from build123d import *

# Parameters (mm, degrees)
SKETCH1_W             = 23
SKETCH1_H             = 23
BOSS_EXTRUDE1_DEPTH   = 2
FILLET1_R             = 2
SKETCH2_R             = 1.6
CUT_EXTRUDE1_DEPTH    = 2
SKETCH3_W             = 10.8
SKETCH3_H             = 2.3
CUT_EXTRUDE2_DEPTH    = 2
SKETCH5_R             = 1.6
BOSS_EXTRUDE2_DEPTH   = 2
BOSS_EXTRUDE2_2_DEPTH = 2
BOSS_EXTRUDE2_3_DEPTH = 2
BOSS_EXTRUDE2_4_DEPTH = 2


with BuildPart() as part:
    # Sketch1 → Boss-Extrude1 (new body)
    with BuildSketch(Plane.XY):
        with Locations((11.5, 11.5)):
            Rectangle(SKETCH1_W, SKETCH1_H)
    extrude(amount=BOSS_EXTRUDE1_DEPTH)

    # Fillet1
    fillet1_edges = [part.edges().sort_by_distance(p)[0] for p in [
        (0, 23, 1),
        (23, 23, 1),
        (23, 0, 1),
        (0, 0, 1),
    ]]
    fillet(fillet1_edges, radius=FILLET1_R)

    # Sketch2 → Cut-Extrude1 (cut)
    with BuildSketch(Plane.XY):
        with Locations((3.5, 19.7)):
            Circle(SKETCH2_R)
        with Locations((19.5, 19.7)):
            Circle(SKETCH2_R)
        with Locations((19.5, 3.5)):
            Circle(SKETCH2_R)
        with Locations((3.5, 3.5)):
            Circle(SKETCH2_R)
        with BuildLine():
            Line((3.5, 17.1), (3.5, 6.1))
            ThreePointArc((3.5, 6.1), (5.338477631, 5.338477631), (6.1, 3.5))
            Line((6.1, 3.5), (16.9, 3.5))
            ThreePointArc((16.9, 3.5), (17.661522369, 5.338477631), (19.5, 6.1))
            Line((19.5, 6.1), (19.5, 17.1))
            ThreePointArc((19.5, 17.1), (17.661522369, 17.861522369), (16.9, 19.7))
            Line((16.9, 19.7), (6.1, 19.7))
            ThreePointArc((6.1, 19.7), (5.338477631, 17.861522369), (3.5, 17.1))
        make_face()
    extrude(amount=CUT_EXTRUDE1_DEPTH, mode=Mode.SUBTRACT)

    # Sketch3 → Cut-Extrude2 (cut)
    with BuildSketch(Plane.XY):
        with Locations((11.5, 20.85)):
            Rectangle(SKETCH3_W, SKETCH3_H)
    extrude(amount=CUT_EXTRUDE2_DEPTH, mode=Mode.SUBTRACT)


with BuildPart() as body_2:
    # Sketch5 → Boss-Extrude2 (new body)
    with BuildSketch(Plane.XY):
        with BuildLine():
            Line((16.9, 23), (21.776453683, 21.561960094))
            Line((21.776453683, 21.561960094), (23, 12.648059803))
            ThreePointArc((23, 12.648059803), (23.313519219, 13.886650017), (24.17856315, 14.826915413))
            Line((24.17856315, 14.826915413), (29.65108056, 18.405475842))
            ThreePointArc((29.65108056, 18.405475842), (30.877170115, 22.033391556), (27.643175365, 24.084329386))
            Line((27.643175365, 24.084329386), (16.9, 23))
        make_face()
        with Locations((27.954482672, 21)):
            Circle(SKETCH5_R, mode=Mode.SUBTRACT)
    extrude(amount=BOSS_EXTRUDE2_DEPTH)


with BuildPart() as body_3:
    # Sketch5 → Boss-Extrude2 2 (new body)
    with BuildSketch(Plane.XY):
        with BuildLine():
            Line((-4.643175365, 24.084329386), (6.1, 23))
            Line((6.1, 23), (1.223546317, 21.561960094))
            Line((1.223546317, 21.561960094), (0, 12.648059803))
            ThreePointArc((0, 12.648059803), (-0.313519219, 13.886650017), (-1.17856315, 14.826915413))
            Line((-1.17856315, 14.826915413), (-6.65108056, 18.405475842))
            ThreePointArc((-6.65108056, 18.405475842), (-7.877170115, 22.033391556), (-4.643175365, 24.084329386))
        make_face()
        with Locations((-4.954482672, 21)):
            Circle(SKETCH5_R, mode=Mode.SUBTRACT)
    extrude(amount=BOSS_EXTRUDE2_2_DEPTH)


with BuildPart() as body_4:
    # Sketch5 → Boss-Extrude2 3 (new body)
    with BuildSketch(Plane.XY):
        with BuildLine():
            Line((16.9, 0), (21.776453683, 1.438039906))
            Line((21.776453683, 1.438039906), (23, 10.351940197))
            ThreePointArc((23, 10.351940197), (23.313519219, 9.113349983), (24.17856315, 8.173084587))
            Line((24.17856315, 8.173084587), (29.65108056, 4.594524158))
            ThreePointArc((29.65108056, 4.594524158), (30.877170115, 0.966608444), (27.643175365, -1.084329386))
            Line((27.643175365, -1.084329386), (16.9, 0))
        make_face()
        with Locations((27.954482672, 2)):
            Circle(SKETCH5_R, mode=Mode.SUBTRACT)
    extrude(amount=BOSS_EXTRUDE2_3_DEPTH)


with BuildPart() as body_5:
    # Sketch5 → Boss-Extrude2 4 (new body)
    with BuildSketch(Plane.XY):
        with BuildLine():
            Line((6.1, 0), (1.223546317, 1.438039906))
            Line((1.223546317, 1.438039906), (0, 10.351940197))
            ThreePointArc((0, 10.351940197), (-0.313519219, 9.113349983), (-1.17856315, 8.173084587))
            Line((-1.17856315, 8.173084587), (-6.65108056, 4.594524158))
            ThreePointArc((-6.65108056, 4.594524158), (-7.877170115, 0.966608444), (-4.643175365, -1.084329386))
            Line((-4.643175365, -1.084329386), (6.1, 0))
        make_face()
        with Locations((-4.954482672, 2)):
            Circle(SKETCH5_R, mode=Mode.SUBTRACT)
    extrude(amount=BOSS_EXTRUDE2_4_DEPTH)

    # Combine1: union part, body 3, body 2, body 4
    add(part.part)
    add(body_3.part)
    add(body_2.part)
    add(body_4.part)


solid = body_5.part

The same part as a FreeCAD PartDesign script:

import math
import FreeCAD as App
import Part
import Sketcher
from FreeCAD import Vector
Q = App.Units.Quantity


def edges_at(feature, points):
    """Names of the edges that pass closest to the given points."""
    edges = feature.Shape.Edges
    near = lambda p: min(range(len(edges)), key=lambda i: edges[i].distToShape(Part.Vertex(*p))[0])
    return sorted({f"Edge{near(p) + 1}" for p in points})


def add_polygon(sketch, points):
    """Adds a closed chain of lines whose ends are joined by coincident constraints."""
    first, n = sketch.GeometryCount, len(points)
    for a, b in zip(points, points[1:] + points[:1]):
        sketch.addGeometry(Part.LineSegment(App.Vector(*a, 0), App.Vector(*b, 0)), False)
    for i in range(n):
        sketch.addConstraint(Sketcher.Constraint("Coincident", first + i, 2, first + (i + 1) % n, 1))

doc = App.newDocument("Part")
body = doc.addObject("PartDesign::Body", "Body")

sketch1 = doc.addObject("Sketcher::SketchObject", "Sketch")
body.addObject(sketch1)
sketch1.AttachmentSupport = (doc.XY_Plane, [""])
sketch1.MapMode = "FlatFace"
add_polygon(sketch1, [(0, 23), (0, 0), (23, 0), (23, 23)])
sketch1.addConstraint(Sketcher.Constraint("Vertical", 0))
sketch1.addConstraint(Sketcher.Constraint("Horizontal", 1))
sketch1.addConstraint(Sketcher.Constraint("Vertical", 2))
sketch1.addConstraint(Sketcher.Constraint("Horizontal", 3))
sketch1.addConstraint(Sketcher.Constraint("Coincident", 0, 2, -1, 1))
sketch1.addConstraint(Sketcher.Constraint("Equal", 3, 0))
sketch1.addConstraint(Sketcher.Constraint("DistanceX", 1, 1, 1, 2, Q("23 mm")))
pad1 = doc.addObject("PartDesign::Pad", "Pad")
body.addObject(pad1)
pad1.Profile = sketch1
pad1.Length = 2
doc.recompute()

fillet = doc.addObject("PartDesign::Fillet", "Fillet")
body.addObject(fillet)
fillet.Base = (pad1, edges_at(pad1, [
    (0, 23, 1),
    (23, 23, 1),
    (23, 0, 1),
    (0, 0, 1),
]))
fillet.Radius = 2

sketch2 = doc.addObject("Sketcher::SketchObject", "Sketch001")
body.addObject(sketch2)
sketch2.AttachmentSupport = (doc.XY_Plane, [""])
sketch2.MapMode = "FlatFace"
sketch2.addGeometry(Part.Circle(Vector(3.5, 19.7, 0), Vector(0, 0, 1), 1.6), False)
sketch2.addGeometry(Part.Circle(Vector(19.5, 19.7, 0), Vector(0, 0, 1), 1.6), False)
sketch2.addGeometry(Part.Circle(Vector(19.5, 3.5, 0), Vector(0, 0, 1), 1.6), False)
sketch2.addGeometry(Part.Circle(Vector(3.5, 3.5, 0), Vector(0, 0, 1), 1.6), False)
sketch2.addGeometry(Part.LineSegment(Vector(3.5, 17.1, 0), Vector(3.5, 6.1, 0)), False)
sketch2.addGeometry(Part.ArcOfCircle(Part.Circle(Vector(3.5, 3.5, 0), Vector(0, 0, 1), 2.6), math.radians(0), math.radians(90)), False)
sketch2.addGeometry(Part.LineSegment(Vector(6.1, 3.5, 0), Vector(16.9, 3.5, 0)), False)
sketch2.addGeometry(Part.ArcOfCircle(Part.Circle(Vector(19.5, 3.5, 0), Vector(0, 0, 1), 2.6), math.radians(90), math.radians(180)), False)
sketch2.addGeometry(Part.LineSegment(Vector(19.5, 6.1, 0), Vector(19.5, 17.1, 0)), False)
sketch2.addGeometry(Part.ArcOfCircle(Part.Circle(Vector(19.5, 19.7, 0), Vector(0, 0, 1), 2.6), math.radians(180), math.radians(270)), False)
sketch2.addGeometry(Part.LineSegment(Vector(16.9, 19.7, 0), Vector(6.1, 19.7, 0)), False)
sketch2.addGeometry(Part.ArcOfCircle(Part.Circle(Vector(3.5, 19.7, 0), Vector(0, 0, 1), 2.6), math.radians(-90), math.radians(0)), False)
sketch2.addConstraint(Sketcher.Constraint("Coincident", 4, 2, 5, 2))
sketch2.addConstraint(Sketcher.Constraint("Coincident", 5, 1, 6, 1))
sketch2.addConstraint(Sketcher.Constraint("Coincident", 6, 2, 7, 2))
sketch2.addConstraint(Sketcher.Constraint("Coincident", 7, 1, 8, 1))
sketch2.addConstraint(Sketcher.Constraint("Coincident", 8, 2, 9, 2))
sketch2.addConstraint(Sketcher.Constraint("Coincident", 9, 1, 10, 1))
sketch2.addConstraint(Sketcher.Constraint("Coincident", 10, 2, 11, 2))
sketch2.addConstraint(Sketcher.Constraint("Coincident", 11, 1, 4, 1))
sketch2.addConstraint(Sketcher.Constraint("Vertical", 4))
sketch2.addConstraint(Sketcher.Constraint("Horizontal", 6))
sketch2.addConstraint(Sketcher.Constraint("Vertical", 8))
sketch2.addConstraint(Sketcher.Constraint("Horizontal", 10))
sketch2.addConstraint(Sketcher.Constraint("Coincident", 5, 3, 3, 3))
sketch2.addConstraint(Sketcher.Constraint("Coincident", 7, 3, 2, 3))
sketch2.addConstraint(Sketcher.Constraint("Coincident", 9, 3, 1, 3))
sketch2.addConstraint(Sketcher.Constraint("Coincident", 11, 3, 0, 3))
sketch2.addConstraint(Sketcher.Constraint("Equal", 0, 1))
sketch2.addConstraint(Sketcher.Constraint("Equal", 1, 2))
sketch2.addConstraint(Sketcher.Constraint("Equal", 2, 3))
sketch2.addConstraint(Sketcher.Constraint("Equal", 5, 7))
sketch2.addConstraint(Sketcher.Constraint("Equal", 7, 9))
sketch2.addConstraint(Sketcher.Constraint("Equal", 9, 11))
sketch2.addConstraint(Sketcher.Constraint("Horizontal", 0, 3, 1, 3))
sketch2.addConstraint(Sketcher.Constraint("Horizontal", 2, 3, 3, 3))
sketch2.addConstraint(Sketcher.Constraint("Horizontal", 7, 3, 5, 1))
sketch2.addConstraint(Sketcher.Constraint("Horizontal", 11, 3, 9, 1))
sketch2.addConstraint(Sketcher.Constraint("Vertical", 1, 3, 2, 3))
sketch2.addConstraint(Sketcher.Constraint("Vertical", 0, 3, 3, 3))
sketch2.addConstraint(Sketcher.Constraint("Vertical", 11, 3, 4, 2))
sketch2.addConstraint(Sketcher.Constraint("Vertical", 9, 3, 7, 1))
sketch2.addConstraint(Sketcher.Constraint("Diameter", 0, Q("3.2 mm")))
sketch2.addConstraint(Sketcher.Constraint("Radius", 5, Q("2.6 mm")))
sketch2.addConstraint(Sketcher.Constraint("DistanceY", 4, 2, 4, 1, Q("11 mm")))
sketch2.addConstraint(Sketcher.Constraint("DistanceX", 6, 1, 6, 2, Q("10.8 mm")))
sketch2.addConstraint(Sketcher.Constraint("DistanceX", -1, 1, 0, 3, Q("3.5 mm")))
sketch2.addConstraint(Sketcher.Constraint("DistanceY", -1, 1, 0, 3, Q("19.7 mm")))
pocket1 = doc.addObject("PartDesign::Pocket", "Pocket")
body.addObject(pocket1)
pocket1.Profile = sketch2
pocket1.Length = 2
pocket1.Reversed = True

sketch3 = doc.addObject("Sketcher::SketchObject", "Sketch002")
body.addObject(sketch3)
sketch3.AttachmentSupport = (doc.XY_Plane, [""])
sketch3.MapMode = "FlatFace"
add_polygon(sketch3, [(6.1, 22), (6.1, 19.7), (16.9, 19.7), (16.9, 22)])
sketch3.addConstraint(Sketcher.Constraint("Vertical", 0))
sketch3.addConstraint(Sketcher.Constraint("Horizontal", 1))
sketch3.addConstraint(Sketcher.Constraint("Vertical", 2))
sketch3.addConstraint(Sketcher.Constraint("Horizontal", 3))
sketch3.addConstraint(Sketcher.Constraint("DistanceX", 1, 1, 1, 2, Q("10.8 mm")))
sketch3.addConstraint(Sketcher.Constraint("DistanceY", 0, 2, 0, 1, Q("2.3 mm")))
sketch3.addConstraint(Sketcher.Constraint("DistanceY", -1, 1, 2, 2, Q("22 mm")))
sketch3.addConstraint(Sketcher.Constraint("DistanceX", -1, 1, 0, 2, Q("6.1 mm")))
pocket2 = doc.addObject("PartDesign::Pocket", "Pocket001")
body.addObject(pocket2)
pocket2.Profile = sketch3
pocket2.Length = 2
pocket2.Reversed = True
body2 = doc.addObject("PartDesign::Body", "Body001")

sketch4 = doc.addObject("Sketcher::SketchObject", "Sketch003")
body2.addObject(sketch4)
sketch4.AttachmentSupport = (doc.getObject("XY_Plane001"), [""])
sketch4.MapMode = "FlatFace"
sketch4.addGeometry(Part.LineSegment(Vector(16.9, 23, 0), Vector(21.776454, 21.56196, 0)), False)
sketch4.addGeometry(Part.LineSegment(Vector(21.776454, 21.56196, 0), Vector(23, 12.64806, 0)), False)
sketch4.addGeometry(Part.ArcOfCircle(Part.Circle(Vector(25.603349, 12.64806, 0), Vector(0, 0, 1), 2.603349), math.radians(123.181269), math.radians(180)), False)
sketch4.addGeometry(Part.LineSegment(Vector(24.178563, 14.826915, 0), Vector(29.651081, 18.405476, 0)), False)
sketch4.addGeometry(Part.ArcOfCircle(Part.Circle(Vector(27.954483, 21, 0), Vector(0, 0, 1), 3.1), math.radians(-56.818731), math.radians(95.763455)), False)
sketch4.addGeometry(Part.LineSegment(Vector(27.643175, 24.084329, 0), Vector(16.9, 23, 0)), False)
sketch4.addGeometry(Part.Circle(Vector(27.954483, 21, 0), Vector(0, 0, 1), 1.6), False)
sketch4.addConstraint(Sketcher.Constraint("Coincident", 0, 2, 1, 1))
sketch4.addConstraint(Sketcher.Constraint("Coincident", 1, 2, 2, 2))
sketch4.addConstraint(Sketcher.Constraint("Tangent", 2, 1, 3, 1))
sketch4.addConstraint(Sketcher.Constraint("Tangent", 3, 2, 4, 1))
sketch4.addConstraint(Sketcher.Constraint("Tangent", 4, 2, 5, 1))
sketch4.addConstraint(Sketcher.Constraint("Coincident", 5, 2, 0, 1))
sketch4.addConstraint(Sketcher.Constraint("Coincident", 6, 3, 4, 3))
sketch4.addConstraint(Sketcher.Constraint("Horizontal", 2, 3, 1, 2))
sketch4.addConstraint(Sketcher.Constraint("Diameter", 6, Q("3.2 mm")))
sketch4.addConstraint(Sketcher.Constraint("Radius", 4, Q("3.1 mm")))
sketch4.addConstraint(Sketcher.Constraint("DistanceY", -1, 1, 4, 3, Q("21 mm")))
sketch4.addConstraint(Sketcher.Constraint("DistanceX", -1, 1, 1, 2, Q("23 mm")))
sketch4.addConstraint(Sketcher.Constraint("DistanceY", -1, 1, 5, 2, Q("23 mm")))
sketch4.addConstraint(Sketcher.Constraint("DistanceX", -1, 1, 5, 2, Q("16.9 mm")))
sketch4.addConstraint(Sketcher.Constraint("Radius", 2, Q("2.603349 mm")))
sketch4.addConstraint(Sketcher.Constraint("DistanceY", 2, 3, 0, 2, Q("8.9139 mm")))
sketch4.addConstraint(Sketcher.Constraint("Distance", 0, Q("5.084069 mm")))
sketch4.addConstraint(Sketcher.Constraint("Distance", 5, Q("10.797758 mm")))
sketch4.addConstraint(Sketcher.Constraint("DistanceY", -1, 1, 2, 3, Q("12.64806 mm")))
pad2 = doc.addObject("PartDesign::Pad", "Pad001")
body2.addObject(pad2)
pad2.Profile = sketch4
pad2.Length = 2
body3 = doc.addObject("PartDesign::Body", "Body002")

sketch5 = doc.addObject("Sketcher::SketchObject", "Sketch004")
body3.addObject(sketch5)
sketch5.AttachmentSupport = (doc.getObject("XY_Plane002"), [""])
sketch5.MapMode = "FlatFace"
sketch5.addGeometry(Part.LineSegment(Vector(6.1, 23, 0), Vector(-4.643175, 24.084329, 0)), False)
sketch5.addGeometry(Part.ArcOfCircle(Part.Circle(Vector(-4.954483, 21, 0), Vector(0, 0, 1), 3.1), math.radians(84.236545), math.radians(236.818731)), False)
sketch5.addGeometry(Part.LineSegment(Vector(-6.651081, 18.405476, 0), Vector(-1.178563, 14.826915, 0)), False)
sketch5.addGeometry(Part.ArcOfCircle(Part.Circle(Vector(-2.603349, 12.64806, 0), Vector(0, 0, 1), 2.603349), math.radians(0), math.radians(56.818731)), False)
sketch5.addGeometry(Part.LineSegment(Vector(0, 12.64806, 0), Vector(1.223546, 21.56196, 0)), False)
sketch5.addGeometry(Part.LineSegment(Vector(1.223546, 21.56196, 0), Vector(6.1, 23, 0)), False)
sketch5.addGeometry(Part.Circle(Vector(-4.954483, 21, 0), Vector(0, 0, 1), 1.6), False)
sketch5.addConstraint(Sketcher.Constraint("Tangent", 0, 2, 1, 1))
sketch5.addConstraint(Sketcher.Constraint("Tangent", 1, 2, 2, 1))
sketch5.addConstraint(Sketcher.Constraint("Tangent", 2, 2, 3, 2))
sketch5.addConstraint(Sketcher.Constraint("Coincident", 3, 1, 4, 1))
sketch5.addConstraint(Sketcher.Constraint("Coincident", 4, 2, 5, 1))
sketch5.addConstraint(Sketcher.Constraint("Coincident", 5, 2, 0, 1))
sketch5.addConstraint(Sketcher.Constraint("Coincident", 6, 3, 1, 3))
sketch5.addConstraint(Sketcher.Constraint("PointOnObject", 3, 1, -2))
sketch5.addConstraint(Sketcher.Constraint("Diameter", 6, Q("3.2 mm")))
sketch5.addConstraint(Sketcher.Constraint("Radius", 1, Q("3.1 mm")))
sketch5.addConstraint(Sketcher.Constraint("DistanceY", -1, 1, 1, 3, Q("21 mm")))
sketch5.addConstraint(Sketcher.Constraint("DistanceY", -1, 1, 5, 2, Q("23 mm")))
sketch5.addConstraint(Sketcher.Constraint("DistanceX", -1, 1, 5, 2, Q("6.1 mm")))
sketch5.addConstraint(Sketcher.Constraint("Radius", 3, Q("2.603349 mm")))
sketch5.addConstraint(Sketcher.Constraint("Distance", 0, Q("10.797758 mm")))
sketch5.addConstraint(Sketcher.Constraint("Distance", 5, Q("5.084069 mm")))
sketch5.addConstraint(Sketcher.Constraint("DistanceY", -1, 1, 3, 3, Q("12.64806 mm")))
sketch5.addConstraint(Sketcher.Constraint("DistanceY", -1, 1, 3, 1, Q("12.64806 mm")))
sketch5.addConstraint(Sketcher.Constraint("DistanceY", -1, 1, 4, 2, Q("21.56196 mm")))
pad3 = doc.addObject("PartDesign::Pad", "Pad002")
body3.addObject(pad3)
pad3.Profile = sketch5
pad3.Length = 2
body4 = doc.addObject("PartDesign::Body", "Body003")

sketch6 = doc.addObject("Sketcher::SketchObject", "Sketch005")
body4.addObject(sketch6)
sketch6.AttachmentSupport = (doc.getObject("XY_Plane003"), [""])
sketch6.MapMode = "FlatFace"
sketch6.addGeometry(Part.LineSegment(Vector(21.776454, 1.43804, 0), Vector(16.9, 0, 0)), False)
sketch6.addGeometry(Part.LineSegment(Vector(16.9, 0, 0), Vector(27.643175, -1.084329, 0)), False)
sketch6.addGeometry(Part.ArcOfCircle(Part.Circle(Vector(27.954483, 2, 0), Vector(0, 0, 1), 3.1), math.radians(-95.763455), math.radians(56.818731)), False)
sketch6.addGeometry(Part.LineSegment(Vector(29.651081, 4.594524, 0), Vector(24.178563, 8.173085, 0)), False)
sketch6.addGeometry(Part.ArcOfCircle(Part.Circle(Vector(25.603349, 10.35194, 0), Vector(0, 0, 1), 2.603349), math.radians(180), math.radians(236.818731)), False)
sketch6.addGeometry(Part.LineSegment(Vector(23, 10.35194, 0), Vector(21.776454, 1.43804, 0)), False)
sketch6.addGeometry(Part.Circle(Vector(27.954483, 2, 0), Vector(0, 0, 1), 1.6), False)
sketch6.addConstraint(Sketcher.Constraint("Coincident", 0, 2, 1, 1))
sketch6.addConstraint(Sketcher.Constraint("Tangent", 1, 2, 2, 1))
sketch6.addConstraint(Sketcher.Constraint("Tangent", 2, 2, 3, 1))
sketch6.addConstraint(Sketcher.Constraint("Tangent", 3, 2, 4, 2))
sketch6.addConstraint(Sketcher.Constraint("Coincident", 4, 1, 5, 1))
sketch6.addConstraint(Sketcher.Constraint("Coincident", 5, 2, 0, 1))
sketch6.addConstraint(Sketcher.Constraint("Coincident", 6, 3, 2, 3))
sketch6.addConstraint(Sketcher.Constraint("PointOnObject", 0, 2, -1))
sketch6.addConstraint(Sketcher.Constraint("Diameter", 6, Q("3.2 mm")))
sketch6.addConstraint(Sketcher.Constraint("Radius", 2, Q("3.1 mm")))
sketch6.addConstraint(Sketcher.Constraint("DistanceY", -1, 1, 2, 3, Q("2 mm")))
sketch6.addConstraint(Sketcher.Constraint("DistanceX", -1, 1, 4, 1, Q("23 mm")))
sketch6.addConstraint(Sketcher.Constraint("DistanceX", -1, 1, 0, 2, Q("16.9 mm")))
sketch6.addConstraint(Sketcher.Constraint("Radius", 4, Q("2.603349 mm")))
sketch6.addConstraint(Sketcher.Constraint("Distance", 0, Q("5.084069 mm")))
sketch6.addConstraint(Sketcher.Constraint("Distance", 1, Q("10.797758 mm")))
sketch6.addConstraint(Sketcher.Constraint("DistanceY", -1, 1, 4, 3, Q("10.35194 mm")))
sketch6.addConstraint(Sketcher.Constraint("DistanceY", -1, 1, 4, 1, Q("10.35194 mm")))
sketch6.addConstraint(Sketcher.Constraint("DistanceY", -1, 1, 5, 2, Q("1.43804 mm")))
pad4 = doc.addObject("PartDesign::Pad", "Pad003")
body4.addObject(pad4)
pad4.Profile = sketch6
pad4.Length = 2
body5 = doc.addObject("PartDesign::Body", "Body004")

sketch7 = doc.addObject("Sketcher::SketchObject", "Sketch006")
body5.addObject(sketch7)
sketch7.AttachmentSupport = (doc.getObject("XY_Plane004"), [""])
sketch7.MapMode = "FlatFace"
sketch7.addGeometry(Part.LineSegment(Vector(6.1, 0, 0), Vector(1.223546, 1.43804, 0)), False)
sketch7.addGeometry(Part.LineSegment(Vector(1.223546, 1.43804, 0), Vector(0, 10.35194, 0)), False)
sketch7.addGeometry(Part.ArcOfCircle(Part.Circle(Vector(-2.603349, 10.35194, 0), Vector(0, 0, 1), 2.603349), math.radians(-56.818731), math.radians(0)), False)
sketch7.addGeometry(Part.LineSegment(Vector(-1.178563, 8.173085, 0), Vector(-6.651081, 4.594524, 0)), False)
sketch7.addGeometry(Part.ArcOfCircle(Part.Circle(Vector(-4.954483, 2, 0), Vector(0, 0, 1), 3.1), math.radians(123.181269), math.radians(275.763455)), False)
sketch7.addGeometry(Part.LineSegment(Vector(-4.643175, -1.084329, 0), Vector(6.1, 0, 0)), False)
sketch7.addGeometry(Part.Circle(Vector(-4.954483, 2, 0), Vector(0, 0, 1), 1.6), False)
sketch7.addConstraint(Sketcher.Constraint("Coincident", 0, 2, 1, 1))
sketch7.addConstraint(Sketcher.Constraint("Coincident", 1, 2, 2, 2))
sketch7.addConstraint(Sketcher.Constraint("Tangent", 2, 1, 3, 1))
sketch7.addConstraint(Sketcher.Constraint("Tangent", 3, 2, 4, 1))
sketch7.addConstraint(Sketcher.Constraint("Tangent", 4, 2, 5, 1))
sketch7.addConstraint(Sketcher.Constraint("Coincident", 5, 2, 0, 1))
sketch7.addConstraint(Sketcher.Constraint("Coincident", 6, 3, 4, 3))
sketch7.addConstraint(Sketcher.Constraint("PointOnObject", 1, 2, -2))
sketch7.addConstraint(Sketcher.Constraint("PointOnObject", 5, 2, -1))
sketch7.addConstraint(Sketcher.Constraint("Horizontal", 2, 3, 1, 2))
sketch7.addConstraint(Sketcher.Constraint("Diameter", 6, Q("3.2 mm")))
sketch7.addConstraint(Sketcher.Constraint("Radius", 4, Q("3.1 mm")))
sketch7.addConstraint(Sketcher.Constraint("DistanceY", -1, 1, 4, 3, Q("2 mm")))
sketch7.addConstraint(Sketcher.Constraint("DistanceX", -1, 1, 5, 2, Q("6.1 mm")))
sketch7.addConstraint(Sketcher.Constraint("Radius", 2, Q("2.603349 mm")))
sketch7.addConstraint(Sketcher.Constraint("DistanceY", 0, 2, 2, 3, Q("8.9139 mm")))
sketch7.addConstraint(Sketcher.Constraint("Distance", 0, Q("5.084069 mm")))
sketch7.addConstraint(Sketcher.Constraint("Distance", 5, Q("10.797758 mm")))
sketch7.addConstraint(Sketcher.Constraint("DistanceY", -1, 1, 2, 3, Q("10.35194 mm")))
pad5 = doc.addObject("PartDesign::Pad", "Pad004")
body5.addObject(pad5)
pad5.Profile = sketch7
pad5.Length = 2
doc.recompute()

boolean = doc.addObject("PartDesign::Boolean", "Boolean")
body5.addObject(boolean)
boolean.Type = "Fuse"
boolean.addObjects([body])
doc.recompute()

boolean2 = doc.addObject("PartDesign::Boolean", "Boolean001")
body5.addObject(boolean2)
boolean2.Type = "Fuse"
boolean2.addObjects([body3])
doc.recompute()

boolean3 = doc.addObject("PartDesign::Boolean", "Boolean002")
body5.addObject(boolean3)
boolean3.Type = "Fuse"
boolean3.addObjects([body2])
doc.recompute()

boolean4 = doc.addObject("PartDesign::Boolean", "Boolean003")
body5.addObject(boolean4)
boolean4.Type = "Fuse"
boolean4.addObjects([body4])

doc.recompute()
